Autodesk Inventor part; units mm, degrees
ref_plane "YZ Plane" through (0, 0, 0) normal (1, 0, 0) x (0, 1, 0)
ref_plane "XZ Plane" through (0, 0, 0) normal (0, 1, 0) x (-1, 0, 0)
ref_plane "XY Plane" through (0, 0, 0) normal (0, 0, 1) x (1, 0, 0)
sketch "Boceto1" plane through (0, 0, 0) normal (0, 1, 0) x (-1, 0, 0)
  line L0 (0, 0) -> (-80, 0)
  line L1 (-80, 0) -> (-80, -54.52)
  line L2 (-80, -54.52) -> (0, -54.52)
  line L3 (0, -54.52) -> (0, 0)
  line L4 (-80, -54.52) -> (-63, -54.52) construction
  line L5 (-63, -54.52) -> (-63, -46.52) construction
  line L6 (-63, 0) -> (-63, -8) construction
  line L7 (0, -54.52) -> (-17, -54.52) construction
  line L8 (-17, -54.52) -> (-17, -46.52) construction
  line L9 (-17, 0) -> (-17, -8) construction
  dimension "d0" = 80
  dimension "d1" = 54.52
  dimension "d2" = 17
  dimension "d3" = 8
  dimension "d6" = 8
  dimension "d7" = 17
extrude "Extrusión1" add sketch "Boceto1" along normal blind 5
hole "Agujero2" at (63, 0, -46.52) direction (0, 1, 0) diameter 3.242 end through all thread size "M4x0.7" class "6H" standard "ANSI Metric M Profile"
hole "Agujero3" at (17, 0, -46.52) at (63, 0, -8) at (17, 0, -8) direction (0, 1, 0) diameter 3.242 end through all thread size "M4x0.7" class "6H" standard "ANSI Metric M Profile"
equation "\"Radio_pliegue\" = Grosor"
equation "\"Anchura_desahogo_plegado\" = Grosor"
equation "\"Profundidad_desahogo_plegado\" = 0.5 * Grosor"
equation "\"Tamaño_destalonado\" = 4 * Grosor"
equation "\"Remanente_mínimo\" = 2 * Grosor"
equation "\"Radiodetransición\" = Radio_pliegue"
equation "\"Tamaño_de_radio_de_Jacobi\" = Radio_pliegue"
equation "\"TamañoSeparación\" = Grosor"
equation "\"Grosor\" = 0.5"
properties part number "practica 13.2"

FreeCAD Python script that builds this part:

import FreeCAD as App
import Part
import Sketcher

V = App.Vector
Q = App.Units.Quantity

doc = App.newDocument("Part")
body = doc.addObject("PartDesign::Body", "Body")

sketch1 = doc.addObject("Sketcher::SketchObject", "Sketch")
body.addObject(sketch1)
sketch1.AttachmentSupport = (doc.XZ_Plane, [""])
sketch1.MapMode = "FlatFace"
sketch1.addGeometry(Part.LineSegment(V(0, -55, 0), V(0, 0, 0)), False)
sketch1.addGeometry(Part.LineSegment(V(0, 0, 0), V(80, 0, 0)), False)
sketch1.addGeometry(Part.LineSegment(V(80, 0, 0), V(80, -55, 0)), False)
sketch1.addGeometry(Part.LineSegment(V(80, -55, 0), V(0, -55, 0)), False)
sketch1.addConstraint(Sketcher.Constraint("Coincident", 0, 2, 1, 1))
sketch1.addConstraint(Sketcher.Constraint("Coincident", 1, 2, 2, 1))
sketch1.addConstraint(Sketcher.Constraint("Coincident", 2, 2, 3, 1))
sketch1.addConstraint(Sketcher.Constraint("Coincident", 3, 2, 0, 1))
sketch1.addConstraint(Sketcher.Constraint("Vertical", 0))
sketch1.addConstraint(Sketcher.Constraint("Horizontal", 1))
sketch1.addConstraint(Sketcher.Constraint("Vertical", 2))
sketch1.addConstraint(Sketcher.Constraint("Horizontal", 3))
sketch1.addConstraint(Sketcher.Constraint("Coincident", 0, 2, -1, 1))
sketch1.addConstraint(Sketcher.Constraint("DistanceX", 1, 1, 1, 2, Q("80 mm")))
sketch1.addConstraint(Sketcher.Constraint("DistanceY", 0, 1, 0, 2, Q("54.52 mm")))
pad1 = doc.addObject("PartDesign::Pad", "Pad")
body.addObject(pad1)
pad1.Profile = sketch1
pad1.Length = 5
pad1.Reversed = True

sketch2 = doc.addObject("Sketcher::SketchObject", "Sketch001")
body.addObject(sketch2)
sketch2.AttachmentSupport = (doc.XZ_Plane, [""])
sketch2.MapMode = "FlatFace"
sketch2.addGeometry(Part.Circle(V(63, -46.5, 0), V(0, 0, 1), 1.6), False)
sketch2.addConstraint(Sketcher.Constraint("Diameter", 0, Q("3.242 mm")))
sketch2.addConstraint(Sketcher.Constraint("DistanceX", -1, 1, 0, 3, Q("63 mm")))
sketch2.addConstraint(Sketcher.Constraint("DistanceY", 0, 3, -1, 1, Q("46.52 mm")))
doc.recompute()
hole = doc.addObject("PartDesign::Hole", "Hole")
body.addObject(hole)
hole.Profile = sketch2
hole.ThreadType = "None"
hole.Diameter = 3.242
hole.DepthType = "ThroughAll"

sketch3 = doc.addObject("Sketcher::SketchObject", "Sketch002")
body.addObject(sketch3)
sketch3.AttachmentSupport = (doc.XZ_Plane, [""])
sketch3.MapMode = "FlatFace"
sketch3.addGeometry(Part.Circle(V(17, -46.5, 0), V(0, 0, 1), 1.6), False)
sketch3.addGeometry(Part.Circle(V(63, -8, 0), V(0, 0, 1), 1.6), False)
sketch3.addGeometry(Part.Circle(V(17, -8, 0), V(0, 0, 1), 1.6), False)
sketch3.addConstraint(Sketcher.Constraint("Equal", 0, 1))
sketch3.addConstraint(Sketcher.Constraint("Equal", 1, 2))
sketch3.addConstraint(Sketcher.Constraint("Horizontal", 1, 3, 2, 3))
sketch3.addConstraint(Sketcher.Constraint("Vertical", 0, 3, 2, 3))
sketch3.addConstraint(Sketcher.Constraint("Diameter", 0, Q("3.242 mm")))
sketch3.addConstraint(Sketcher.Constraint("DistanceX", -1, 1, 0, 3, Q("17 mm")))
sketch3.addConstraint(Sketcher.Constraint("DistanceX", -1, 1, 1, 3, Q("63 mm")))
sketch3.addConstraint(Sketcher.Constraint("DistanceY", 1, 3, -1, 1, Q("8 mm")))
sketch3.addConstraint(Sketcher.Constraint("DistanceY", 0, 3, -1, 1, Q("46.52 mm")))
doc.recompute()
hole2 = doc.addObject("PartDesign::Hole", "Hole001")
body.addObject(hole2)
hole2.Profile = sketch3
hole2.ThreadType = "None"
hole2.Diameter = 3.242
hole2.DepthType = "ThroughAll"

doc.recompute()
